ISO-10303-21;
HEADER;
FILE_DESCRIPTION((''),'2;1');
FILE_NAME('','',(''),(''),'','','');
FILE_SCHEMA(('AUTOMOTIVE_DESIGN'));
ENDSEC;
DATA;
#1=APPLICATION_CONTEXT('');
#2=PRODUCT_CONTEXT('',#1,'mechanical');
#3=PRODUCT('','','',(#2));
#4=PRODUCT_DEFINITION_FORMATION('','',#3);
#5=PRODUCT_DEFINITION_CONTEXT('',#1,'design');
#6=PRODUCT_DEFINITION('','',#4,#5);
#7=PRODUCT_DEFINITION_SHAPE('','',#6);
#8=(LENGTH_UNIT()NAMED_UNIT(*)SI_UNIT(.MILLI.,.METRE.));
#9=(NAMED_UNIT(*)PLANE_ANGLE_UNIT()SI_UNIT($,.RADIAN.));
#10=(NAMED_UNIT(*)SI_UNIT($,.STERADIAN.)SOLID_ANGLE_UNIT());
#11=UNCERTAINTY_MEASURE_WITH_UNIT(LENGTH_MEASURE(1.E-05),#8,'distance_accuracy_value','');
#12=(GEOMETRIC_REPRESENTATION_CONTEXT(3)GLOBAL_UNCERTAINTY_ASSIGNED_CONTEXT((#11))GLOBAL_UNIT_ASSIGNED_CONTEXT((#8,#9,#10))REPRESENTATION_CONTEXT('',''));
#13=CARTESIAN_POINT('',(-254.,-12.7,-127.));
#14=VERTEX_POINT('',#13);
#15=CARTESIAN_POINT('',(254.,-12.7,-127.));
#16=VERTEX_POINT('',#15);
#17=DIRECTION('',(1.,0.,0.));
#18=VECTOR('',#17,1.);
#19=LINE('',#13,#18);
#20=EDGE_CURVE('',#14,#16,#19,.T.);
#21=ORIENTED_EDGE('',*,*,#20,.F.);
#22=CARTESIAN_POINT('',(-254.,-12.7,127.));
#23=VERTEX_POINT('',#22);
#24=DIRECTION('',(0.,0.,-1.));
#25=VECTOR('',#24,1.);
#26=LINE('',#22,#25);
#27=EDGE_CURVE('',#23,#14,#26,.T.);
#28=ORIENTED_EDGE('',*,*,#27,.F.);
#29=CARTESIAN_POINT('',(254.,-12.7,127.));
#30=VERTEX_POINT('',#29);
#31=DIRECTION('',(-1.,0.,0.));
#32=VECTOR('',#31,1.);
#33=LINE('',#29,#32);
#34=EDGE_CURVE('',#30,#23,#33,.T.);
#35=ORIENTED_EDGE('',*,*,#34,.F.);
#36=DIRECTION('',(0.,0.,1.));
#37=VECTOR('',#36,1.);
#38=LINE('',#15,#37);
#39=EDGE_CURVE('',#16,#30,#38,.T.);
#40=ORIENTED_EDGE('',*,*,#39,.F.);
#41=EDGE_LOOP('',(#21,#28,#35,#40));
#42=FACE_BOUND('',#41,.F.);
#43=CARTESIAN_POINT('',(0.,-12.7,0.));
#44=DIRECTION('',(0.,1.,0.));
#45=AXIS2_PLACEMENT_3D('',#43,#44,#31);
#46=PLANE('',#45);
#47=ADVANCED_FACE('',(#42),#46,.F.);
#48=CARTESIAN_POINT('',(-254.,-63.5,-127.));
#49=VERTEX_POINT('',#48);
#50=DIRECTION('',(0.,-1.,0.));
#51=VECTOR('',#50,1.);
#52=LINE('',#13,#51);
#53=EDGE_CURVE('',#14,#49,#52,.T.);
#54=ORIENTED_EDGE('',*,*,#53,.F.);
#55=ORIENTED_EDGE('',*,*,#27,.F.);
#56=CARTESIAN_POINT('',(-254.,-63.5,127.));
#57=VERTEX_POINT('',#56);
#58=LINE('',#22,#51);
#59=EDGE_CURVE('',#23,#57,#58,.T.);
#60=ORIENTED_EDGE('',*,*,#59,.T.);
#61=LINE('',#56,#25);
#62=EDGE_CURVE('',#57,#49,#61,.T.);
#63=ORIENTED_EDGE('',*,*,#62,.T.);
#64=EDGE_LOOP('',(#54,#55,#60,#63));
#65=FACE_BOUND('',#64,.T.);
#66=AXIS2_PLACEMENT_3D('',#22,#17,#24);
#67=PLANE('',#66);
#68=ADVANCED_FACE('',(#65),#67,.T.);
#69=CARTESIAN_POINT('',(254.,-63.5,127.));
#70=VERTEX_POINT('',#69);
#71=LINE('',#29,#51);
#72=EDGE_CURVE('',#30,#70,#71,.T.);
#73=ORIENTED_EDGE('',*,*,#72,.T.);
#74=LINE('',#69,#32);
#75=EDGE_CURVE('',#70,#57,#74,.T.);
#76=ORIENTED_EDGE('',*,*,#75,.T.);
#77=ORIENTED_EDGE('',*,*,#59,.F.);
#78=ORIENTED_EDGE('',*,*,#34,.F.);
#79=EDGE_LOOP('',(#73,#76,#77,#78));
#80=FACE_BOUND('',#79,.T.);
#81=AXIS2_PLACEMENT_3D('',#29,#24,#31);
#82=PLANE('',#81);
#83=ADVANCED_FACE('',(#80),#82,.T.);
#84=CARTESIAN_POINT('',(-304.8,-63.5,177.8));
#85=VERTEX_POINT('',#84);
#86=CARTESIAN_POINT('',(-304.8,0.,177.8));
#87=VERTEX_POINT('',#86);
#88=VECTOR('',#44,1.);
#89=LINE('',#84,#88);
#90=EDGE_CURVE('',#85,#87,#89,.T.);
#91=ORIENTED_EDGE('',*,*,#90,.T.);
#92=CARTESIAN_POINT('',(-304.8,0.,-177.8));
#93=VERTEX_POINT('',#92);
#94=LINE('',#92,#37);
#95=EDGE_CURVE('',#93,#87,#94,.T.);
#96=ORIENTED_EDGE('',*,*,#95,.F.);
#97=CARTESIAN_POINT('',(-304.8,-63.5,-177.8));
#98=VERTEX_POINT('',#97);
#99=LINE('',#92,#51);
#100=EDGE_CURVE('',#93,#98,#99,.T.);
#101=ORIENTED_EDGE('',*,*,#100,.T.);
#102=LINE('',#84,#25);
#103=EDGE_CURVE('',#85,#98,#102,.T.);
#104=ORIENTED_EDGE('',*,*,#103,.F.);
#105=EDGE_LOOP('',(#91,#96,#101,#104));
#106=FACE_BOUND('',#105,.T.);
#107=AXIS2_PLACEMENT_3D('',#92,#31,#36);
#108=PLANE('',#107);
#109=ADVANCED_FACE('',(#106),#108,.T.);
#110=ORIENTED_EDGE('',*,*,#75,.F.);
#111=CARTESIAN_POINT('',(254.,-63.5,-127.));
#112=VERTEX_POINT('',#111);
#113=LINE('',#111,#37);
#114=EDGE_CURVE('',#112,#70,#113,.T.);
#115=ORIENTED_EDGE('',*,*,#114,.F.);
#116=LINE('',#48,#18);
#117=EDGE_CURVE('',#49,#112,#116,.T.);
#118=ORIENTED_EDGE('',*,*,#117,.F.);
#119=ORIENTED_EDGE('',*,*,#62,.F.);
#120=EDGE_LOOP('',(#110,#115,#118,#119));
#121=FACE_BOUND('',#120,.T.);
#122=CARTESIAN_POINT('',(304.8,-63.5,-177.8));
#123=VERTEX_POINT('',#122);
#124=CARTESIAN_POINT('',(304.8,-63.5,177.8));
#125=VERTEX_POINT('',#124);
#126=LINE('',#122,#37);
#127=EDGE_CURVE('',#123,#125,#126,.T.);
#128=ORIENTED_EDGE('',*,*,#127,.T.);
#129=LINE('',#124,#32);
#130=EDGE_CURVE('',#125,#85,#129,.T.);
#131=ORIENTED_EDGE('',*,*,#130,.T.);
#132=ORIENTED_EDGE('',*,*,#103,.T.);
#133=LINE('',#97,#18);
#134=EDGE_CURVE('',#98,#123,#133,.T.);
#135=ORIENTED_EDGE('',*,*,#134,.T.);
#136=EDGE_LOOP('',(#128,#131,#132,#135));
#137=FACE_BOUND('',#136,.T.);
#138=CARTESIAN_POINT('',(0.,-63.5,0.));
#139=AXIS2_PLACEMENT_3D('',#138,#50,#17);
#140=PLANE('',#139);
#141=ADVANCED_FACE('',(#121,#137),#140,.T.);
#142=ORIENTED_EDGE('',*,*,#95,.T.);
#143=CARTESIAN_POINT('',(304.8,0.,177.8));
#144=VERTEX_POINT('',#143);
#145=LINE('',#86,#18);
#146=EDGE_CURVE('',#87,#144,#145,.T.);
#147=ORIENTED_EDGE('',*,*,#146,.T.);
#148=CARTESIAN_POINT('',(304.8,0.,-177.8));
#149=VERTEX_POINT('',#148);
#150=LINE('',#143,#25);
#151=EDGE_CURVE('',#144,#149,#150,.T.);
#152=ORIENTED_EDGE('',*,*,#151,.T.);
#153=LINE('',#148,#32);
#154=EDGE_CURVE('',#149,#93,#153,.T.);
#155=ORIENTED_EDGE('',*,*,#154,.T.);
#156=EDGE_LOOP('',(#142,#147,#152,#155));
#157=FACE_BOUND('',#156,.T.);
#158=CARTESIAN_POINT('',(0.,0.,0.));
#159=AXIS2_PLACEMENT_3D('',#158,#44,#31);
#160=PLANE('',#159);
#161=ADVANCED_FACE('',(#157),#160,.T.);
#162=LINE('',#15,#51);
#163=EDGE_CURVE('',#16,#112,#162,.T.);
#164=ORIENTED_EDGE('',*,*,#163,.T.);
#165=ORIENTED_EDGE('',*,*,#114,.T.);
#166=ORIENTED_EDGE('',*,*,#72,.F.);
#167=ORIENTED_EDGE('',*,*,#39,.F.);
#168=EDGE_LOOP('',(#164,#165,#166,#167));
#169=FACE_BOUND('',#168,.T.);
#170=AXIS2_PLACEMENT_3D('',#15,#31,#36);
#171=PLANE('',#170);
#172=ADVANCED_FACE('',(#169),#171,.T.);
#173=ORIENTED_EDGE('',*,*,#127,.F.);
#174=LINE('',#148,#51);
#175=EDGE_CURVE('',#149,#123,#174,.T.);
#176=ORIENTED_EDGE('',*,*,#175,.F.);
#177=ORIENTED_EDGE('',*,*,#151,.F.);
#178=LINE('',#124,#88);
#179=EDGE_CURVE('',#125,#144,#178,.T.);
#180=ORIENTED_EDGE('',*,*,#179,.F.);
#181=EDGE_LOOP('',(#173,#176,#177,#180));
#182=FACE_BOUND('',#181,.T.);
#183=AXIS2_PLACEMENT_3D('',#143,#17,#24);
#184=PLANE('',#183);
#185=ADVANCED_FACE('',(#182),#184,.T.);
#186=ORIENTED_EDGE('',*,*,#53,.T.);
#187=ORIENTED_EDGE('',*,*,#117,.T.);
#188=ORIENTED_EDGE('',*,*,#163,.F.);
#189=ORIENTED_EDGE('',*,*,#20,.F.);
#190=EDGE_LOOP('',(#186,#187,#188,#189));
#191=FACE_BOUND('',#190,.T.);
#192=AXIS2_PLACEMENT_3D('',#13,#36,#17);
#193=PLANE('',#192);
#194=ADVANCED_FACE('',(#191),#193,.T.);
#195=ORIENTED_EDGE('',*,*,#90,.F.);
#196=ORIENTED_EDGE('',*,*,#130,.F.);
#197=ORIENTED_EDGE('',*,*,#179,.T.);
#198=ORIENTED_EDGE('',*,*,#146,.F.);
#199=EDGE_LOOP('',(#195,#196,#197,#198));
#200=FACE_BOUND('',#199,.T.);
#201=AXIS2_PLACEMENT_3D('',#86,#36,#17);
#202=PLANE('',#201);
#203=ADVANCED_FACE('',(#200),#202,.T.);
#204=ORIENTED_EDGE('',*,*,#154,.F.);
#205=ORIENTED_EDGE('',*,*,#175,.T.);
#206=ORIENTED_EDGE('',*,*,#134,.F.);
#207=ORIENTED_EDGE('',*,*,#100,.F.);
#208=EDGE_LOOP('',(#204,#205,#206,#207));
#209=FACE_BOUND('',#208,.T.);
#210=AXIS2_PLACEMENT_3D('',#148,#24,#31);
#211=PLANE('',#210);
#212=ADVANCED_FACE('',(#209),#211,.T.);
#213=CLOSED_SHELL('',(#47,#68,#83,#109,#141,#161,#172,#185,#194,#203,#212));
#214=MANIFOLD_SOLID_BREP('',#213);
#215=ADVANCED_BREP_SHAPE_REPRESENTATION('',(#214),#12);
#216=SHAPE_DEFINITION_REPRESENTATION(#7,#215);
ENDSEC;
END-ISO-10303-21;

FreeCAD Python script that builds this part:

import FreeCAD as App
import Part
import Sketcher
from FreeCAD import Vector
Q = App.Units.Quantity


def add_polygon(sketch, points):
    """Adds a closed chain of lines whose ends are joined by coincident constraints."""
    first, n = sketch.GeometryCount, len(points)
    for a, b in zip(points, points[1:] + points[:1]):
        sketch.addGeometry(Part.LineSegment(App.Vector(*a, 0), App.Vector(*b, 0)), False)
    for i in range(n):
        sketch.addConstraint(Sketcher.Constraint("Coincident", first + i, 2, first + (i + 1) % n, 1))

doc = App.newDocument("Part")
body = doc.addObject("PartDesign::Body", "Body")

# Sketch on XZ plane
sketch1 = doc.addObject("Sketcher::SketchObject", "Sketch")
body.addObject(sketch1)
sketch1.AttachmentSupport = (doc.XZ_Plane, [""])
sketch1.MapMode = "FlatFace"
add_polygon(sketch1, [(-304.8, -177.8), (-304.8, 177.8), (304.8, 177.8), (304.8, -177.8)])  # lines 0-3
sketch1.addConstraint([
    Sketcher.Constraint("Vertical", 0),
    Sketcher.Constraint("Horizontal", 1),
    Sketcher.Constraint("Vertical", 2),
    Sketcher.Constraint("Horizontal", 3),
    Sketcher.Constraint("Symmetric", 0, 2, 2, 2, -1, 1),
    Sketcher.Constraint("DistanceX", 1, 1, 1, 2, Q("24 in")),
    Sketcher.Constraint("DistanceY", 0, 1, 0, 2, Q("14 in")),
])
pad1 = doc.addObject("PartDesign::Pad", "Pad")
body.addObject(pad1)
pad1.Profile = sketch1
pad1.Length = Q("0.5 in")

# Sketch on XZ plane
sketch2 = doc.addObject("Sketcher::SketchObject", "Sketch001")
body.addObject(sketch2)
sketch2.AttachmentSupport = (doc.XZ_Plane, [""])
sketch2.MapMode = "FlatFace"
sketch2.AttachmentOffset = App.Placement(Vector(0, 0, 0.5 * 25.4), App.Rotation())
add_polygon(sketch2, [(304.8, -177.8), (304.8, 177.8), (-304.8, 177.8), (-304.8, -177.8)])  # lines 0-3
add_polygon(sketch2, [(-254, -127), (-254, 127), (254, 127), (254, -127)])  # lines 4-7
sketch2.addConstraint([
    Sketcher.Constraint("Vertical", 0),
    Sketcher.Constraint("Horizontal", 1),
    Sketcher.Constraint("Vertical", 2),
    Sketcher.Constraint("Horizontal", 3),
    Sketcher.Constraint("Vertical", 4),
    Sketcher.Constraint("Horizontal", 5),
    Sketcher.Constraint("Vertical", 6),
    Sketcher.Constraint("Horizontal", 7),
    Sketcher.Constraint("Symmetric", 0, 2, 2, 2, -1, 1),
    Sketcher.Constraint("Symmetric", 4, 2, 6, 2, -1, 1),
    Sketcher.Constraint("DistanceX", 1, 2, 4, 2, Q("2 in")),
    Sketcher.Constraint("DistanceY", 4, 2, 1, 2, Q("2 in")),
    Sketcher.Constraint("DistanceX", 1, 2, 1, 1, Q("24 in")),
    Sketcher.Constraint("DistanceY", 0, 1, 0, 2, Q("14 in")),
])
pad2 = doc.addObject("PartDesign::Pad", "Pad001")
body.addObject(pad2)
pad2.Profile = sketch2
pad2.Length = Q("2 in")

doc.recompute()
